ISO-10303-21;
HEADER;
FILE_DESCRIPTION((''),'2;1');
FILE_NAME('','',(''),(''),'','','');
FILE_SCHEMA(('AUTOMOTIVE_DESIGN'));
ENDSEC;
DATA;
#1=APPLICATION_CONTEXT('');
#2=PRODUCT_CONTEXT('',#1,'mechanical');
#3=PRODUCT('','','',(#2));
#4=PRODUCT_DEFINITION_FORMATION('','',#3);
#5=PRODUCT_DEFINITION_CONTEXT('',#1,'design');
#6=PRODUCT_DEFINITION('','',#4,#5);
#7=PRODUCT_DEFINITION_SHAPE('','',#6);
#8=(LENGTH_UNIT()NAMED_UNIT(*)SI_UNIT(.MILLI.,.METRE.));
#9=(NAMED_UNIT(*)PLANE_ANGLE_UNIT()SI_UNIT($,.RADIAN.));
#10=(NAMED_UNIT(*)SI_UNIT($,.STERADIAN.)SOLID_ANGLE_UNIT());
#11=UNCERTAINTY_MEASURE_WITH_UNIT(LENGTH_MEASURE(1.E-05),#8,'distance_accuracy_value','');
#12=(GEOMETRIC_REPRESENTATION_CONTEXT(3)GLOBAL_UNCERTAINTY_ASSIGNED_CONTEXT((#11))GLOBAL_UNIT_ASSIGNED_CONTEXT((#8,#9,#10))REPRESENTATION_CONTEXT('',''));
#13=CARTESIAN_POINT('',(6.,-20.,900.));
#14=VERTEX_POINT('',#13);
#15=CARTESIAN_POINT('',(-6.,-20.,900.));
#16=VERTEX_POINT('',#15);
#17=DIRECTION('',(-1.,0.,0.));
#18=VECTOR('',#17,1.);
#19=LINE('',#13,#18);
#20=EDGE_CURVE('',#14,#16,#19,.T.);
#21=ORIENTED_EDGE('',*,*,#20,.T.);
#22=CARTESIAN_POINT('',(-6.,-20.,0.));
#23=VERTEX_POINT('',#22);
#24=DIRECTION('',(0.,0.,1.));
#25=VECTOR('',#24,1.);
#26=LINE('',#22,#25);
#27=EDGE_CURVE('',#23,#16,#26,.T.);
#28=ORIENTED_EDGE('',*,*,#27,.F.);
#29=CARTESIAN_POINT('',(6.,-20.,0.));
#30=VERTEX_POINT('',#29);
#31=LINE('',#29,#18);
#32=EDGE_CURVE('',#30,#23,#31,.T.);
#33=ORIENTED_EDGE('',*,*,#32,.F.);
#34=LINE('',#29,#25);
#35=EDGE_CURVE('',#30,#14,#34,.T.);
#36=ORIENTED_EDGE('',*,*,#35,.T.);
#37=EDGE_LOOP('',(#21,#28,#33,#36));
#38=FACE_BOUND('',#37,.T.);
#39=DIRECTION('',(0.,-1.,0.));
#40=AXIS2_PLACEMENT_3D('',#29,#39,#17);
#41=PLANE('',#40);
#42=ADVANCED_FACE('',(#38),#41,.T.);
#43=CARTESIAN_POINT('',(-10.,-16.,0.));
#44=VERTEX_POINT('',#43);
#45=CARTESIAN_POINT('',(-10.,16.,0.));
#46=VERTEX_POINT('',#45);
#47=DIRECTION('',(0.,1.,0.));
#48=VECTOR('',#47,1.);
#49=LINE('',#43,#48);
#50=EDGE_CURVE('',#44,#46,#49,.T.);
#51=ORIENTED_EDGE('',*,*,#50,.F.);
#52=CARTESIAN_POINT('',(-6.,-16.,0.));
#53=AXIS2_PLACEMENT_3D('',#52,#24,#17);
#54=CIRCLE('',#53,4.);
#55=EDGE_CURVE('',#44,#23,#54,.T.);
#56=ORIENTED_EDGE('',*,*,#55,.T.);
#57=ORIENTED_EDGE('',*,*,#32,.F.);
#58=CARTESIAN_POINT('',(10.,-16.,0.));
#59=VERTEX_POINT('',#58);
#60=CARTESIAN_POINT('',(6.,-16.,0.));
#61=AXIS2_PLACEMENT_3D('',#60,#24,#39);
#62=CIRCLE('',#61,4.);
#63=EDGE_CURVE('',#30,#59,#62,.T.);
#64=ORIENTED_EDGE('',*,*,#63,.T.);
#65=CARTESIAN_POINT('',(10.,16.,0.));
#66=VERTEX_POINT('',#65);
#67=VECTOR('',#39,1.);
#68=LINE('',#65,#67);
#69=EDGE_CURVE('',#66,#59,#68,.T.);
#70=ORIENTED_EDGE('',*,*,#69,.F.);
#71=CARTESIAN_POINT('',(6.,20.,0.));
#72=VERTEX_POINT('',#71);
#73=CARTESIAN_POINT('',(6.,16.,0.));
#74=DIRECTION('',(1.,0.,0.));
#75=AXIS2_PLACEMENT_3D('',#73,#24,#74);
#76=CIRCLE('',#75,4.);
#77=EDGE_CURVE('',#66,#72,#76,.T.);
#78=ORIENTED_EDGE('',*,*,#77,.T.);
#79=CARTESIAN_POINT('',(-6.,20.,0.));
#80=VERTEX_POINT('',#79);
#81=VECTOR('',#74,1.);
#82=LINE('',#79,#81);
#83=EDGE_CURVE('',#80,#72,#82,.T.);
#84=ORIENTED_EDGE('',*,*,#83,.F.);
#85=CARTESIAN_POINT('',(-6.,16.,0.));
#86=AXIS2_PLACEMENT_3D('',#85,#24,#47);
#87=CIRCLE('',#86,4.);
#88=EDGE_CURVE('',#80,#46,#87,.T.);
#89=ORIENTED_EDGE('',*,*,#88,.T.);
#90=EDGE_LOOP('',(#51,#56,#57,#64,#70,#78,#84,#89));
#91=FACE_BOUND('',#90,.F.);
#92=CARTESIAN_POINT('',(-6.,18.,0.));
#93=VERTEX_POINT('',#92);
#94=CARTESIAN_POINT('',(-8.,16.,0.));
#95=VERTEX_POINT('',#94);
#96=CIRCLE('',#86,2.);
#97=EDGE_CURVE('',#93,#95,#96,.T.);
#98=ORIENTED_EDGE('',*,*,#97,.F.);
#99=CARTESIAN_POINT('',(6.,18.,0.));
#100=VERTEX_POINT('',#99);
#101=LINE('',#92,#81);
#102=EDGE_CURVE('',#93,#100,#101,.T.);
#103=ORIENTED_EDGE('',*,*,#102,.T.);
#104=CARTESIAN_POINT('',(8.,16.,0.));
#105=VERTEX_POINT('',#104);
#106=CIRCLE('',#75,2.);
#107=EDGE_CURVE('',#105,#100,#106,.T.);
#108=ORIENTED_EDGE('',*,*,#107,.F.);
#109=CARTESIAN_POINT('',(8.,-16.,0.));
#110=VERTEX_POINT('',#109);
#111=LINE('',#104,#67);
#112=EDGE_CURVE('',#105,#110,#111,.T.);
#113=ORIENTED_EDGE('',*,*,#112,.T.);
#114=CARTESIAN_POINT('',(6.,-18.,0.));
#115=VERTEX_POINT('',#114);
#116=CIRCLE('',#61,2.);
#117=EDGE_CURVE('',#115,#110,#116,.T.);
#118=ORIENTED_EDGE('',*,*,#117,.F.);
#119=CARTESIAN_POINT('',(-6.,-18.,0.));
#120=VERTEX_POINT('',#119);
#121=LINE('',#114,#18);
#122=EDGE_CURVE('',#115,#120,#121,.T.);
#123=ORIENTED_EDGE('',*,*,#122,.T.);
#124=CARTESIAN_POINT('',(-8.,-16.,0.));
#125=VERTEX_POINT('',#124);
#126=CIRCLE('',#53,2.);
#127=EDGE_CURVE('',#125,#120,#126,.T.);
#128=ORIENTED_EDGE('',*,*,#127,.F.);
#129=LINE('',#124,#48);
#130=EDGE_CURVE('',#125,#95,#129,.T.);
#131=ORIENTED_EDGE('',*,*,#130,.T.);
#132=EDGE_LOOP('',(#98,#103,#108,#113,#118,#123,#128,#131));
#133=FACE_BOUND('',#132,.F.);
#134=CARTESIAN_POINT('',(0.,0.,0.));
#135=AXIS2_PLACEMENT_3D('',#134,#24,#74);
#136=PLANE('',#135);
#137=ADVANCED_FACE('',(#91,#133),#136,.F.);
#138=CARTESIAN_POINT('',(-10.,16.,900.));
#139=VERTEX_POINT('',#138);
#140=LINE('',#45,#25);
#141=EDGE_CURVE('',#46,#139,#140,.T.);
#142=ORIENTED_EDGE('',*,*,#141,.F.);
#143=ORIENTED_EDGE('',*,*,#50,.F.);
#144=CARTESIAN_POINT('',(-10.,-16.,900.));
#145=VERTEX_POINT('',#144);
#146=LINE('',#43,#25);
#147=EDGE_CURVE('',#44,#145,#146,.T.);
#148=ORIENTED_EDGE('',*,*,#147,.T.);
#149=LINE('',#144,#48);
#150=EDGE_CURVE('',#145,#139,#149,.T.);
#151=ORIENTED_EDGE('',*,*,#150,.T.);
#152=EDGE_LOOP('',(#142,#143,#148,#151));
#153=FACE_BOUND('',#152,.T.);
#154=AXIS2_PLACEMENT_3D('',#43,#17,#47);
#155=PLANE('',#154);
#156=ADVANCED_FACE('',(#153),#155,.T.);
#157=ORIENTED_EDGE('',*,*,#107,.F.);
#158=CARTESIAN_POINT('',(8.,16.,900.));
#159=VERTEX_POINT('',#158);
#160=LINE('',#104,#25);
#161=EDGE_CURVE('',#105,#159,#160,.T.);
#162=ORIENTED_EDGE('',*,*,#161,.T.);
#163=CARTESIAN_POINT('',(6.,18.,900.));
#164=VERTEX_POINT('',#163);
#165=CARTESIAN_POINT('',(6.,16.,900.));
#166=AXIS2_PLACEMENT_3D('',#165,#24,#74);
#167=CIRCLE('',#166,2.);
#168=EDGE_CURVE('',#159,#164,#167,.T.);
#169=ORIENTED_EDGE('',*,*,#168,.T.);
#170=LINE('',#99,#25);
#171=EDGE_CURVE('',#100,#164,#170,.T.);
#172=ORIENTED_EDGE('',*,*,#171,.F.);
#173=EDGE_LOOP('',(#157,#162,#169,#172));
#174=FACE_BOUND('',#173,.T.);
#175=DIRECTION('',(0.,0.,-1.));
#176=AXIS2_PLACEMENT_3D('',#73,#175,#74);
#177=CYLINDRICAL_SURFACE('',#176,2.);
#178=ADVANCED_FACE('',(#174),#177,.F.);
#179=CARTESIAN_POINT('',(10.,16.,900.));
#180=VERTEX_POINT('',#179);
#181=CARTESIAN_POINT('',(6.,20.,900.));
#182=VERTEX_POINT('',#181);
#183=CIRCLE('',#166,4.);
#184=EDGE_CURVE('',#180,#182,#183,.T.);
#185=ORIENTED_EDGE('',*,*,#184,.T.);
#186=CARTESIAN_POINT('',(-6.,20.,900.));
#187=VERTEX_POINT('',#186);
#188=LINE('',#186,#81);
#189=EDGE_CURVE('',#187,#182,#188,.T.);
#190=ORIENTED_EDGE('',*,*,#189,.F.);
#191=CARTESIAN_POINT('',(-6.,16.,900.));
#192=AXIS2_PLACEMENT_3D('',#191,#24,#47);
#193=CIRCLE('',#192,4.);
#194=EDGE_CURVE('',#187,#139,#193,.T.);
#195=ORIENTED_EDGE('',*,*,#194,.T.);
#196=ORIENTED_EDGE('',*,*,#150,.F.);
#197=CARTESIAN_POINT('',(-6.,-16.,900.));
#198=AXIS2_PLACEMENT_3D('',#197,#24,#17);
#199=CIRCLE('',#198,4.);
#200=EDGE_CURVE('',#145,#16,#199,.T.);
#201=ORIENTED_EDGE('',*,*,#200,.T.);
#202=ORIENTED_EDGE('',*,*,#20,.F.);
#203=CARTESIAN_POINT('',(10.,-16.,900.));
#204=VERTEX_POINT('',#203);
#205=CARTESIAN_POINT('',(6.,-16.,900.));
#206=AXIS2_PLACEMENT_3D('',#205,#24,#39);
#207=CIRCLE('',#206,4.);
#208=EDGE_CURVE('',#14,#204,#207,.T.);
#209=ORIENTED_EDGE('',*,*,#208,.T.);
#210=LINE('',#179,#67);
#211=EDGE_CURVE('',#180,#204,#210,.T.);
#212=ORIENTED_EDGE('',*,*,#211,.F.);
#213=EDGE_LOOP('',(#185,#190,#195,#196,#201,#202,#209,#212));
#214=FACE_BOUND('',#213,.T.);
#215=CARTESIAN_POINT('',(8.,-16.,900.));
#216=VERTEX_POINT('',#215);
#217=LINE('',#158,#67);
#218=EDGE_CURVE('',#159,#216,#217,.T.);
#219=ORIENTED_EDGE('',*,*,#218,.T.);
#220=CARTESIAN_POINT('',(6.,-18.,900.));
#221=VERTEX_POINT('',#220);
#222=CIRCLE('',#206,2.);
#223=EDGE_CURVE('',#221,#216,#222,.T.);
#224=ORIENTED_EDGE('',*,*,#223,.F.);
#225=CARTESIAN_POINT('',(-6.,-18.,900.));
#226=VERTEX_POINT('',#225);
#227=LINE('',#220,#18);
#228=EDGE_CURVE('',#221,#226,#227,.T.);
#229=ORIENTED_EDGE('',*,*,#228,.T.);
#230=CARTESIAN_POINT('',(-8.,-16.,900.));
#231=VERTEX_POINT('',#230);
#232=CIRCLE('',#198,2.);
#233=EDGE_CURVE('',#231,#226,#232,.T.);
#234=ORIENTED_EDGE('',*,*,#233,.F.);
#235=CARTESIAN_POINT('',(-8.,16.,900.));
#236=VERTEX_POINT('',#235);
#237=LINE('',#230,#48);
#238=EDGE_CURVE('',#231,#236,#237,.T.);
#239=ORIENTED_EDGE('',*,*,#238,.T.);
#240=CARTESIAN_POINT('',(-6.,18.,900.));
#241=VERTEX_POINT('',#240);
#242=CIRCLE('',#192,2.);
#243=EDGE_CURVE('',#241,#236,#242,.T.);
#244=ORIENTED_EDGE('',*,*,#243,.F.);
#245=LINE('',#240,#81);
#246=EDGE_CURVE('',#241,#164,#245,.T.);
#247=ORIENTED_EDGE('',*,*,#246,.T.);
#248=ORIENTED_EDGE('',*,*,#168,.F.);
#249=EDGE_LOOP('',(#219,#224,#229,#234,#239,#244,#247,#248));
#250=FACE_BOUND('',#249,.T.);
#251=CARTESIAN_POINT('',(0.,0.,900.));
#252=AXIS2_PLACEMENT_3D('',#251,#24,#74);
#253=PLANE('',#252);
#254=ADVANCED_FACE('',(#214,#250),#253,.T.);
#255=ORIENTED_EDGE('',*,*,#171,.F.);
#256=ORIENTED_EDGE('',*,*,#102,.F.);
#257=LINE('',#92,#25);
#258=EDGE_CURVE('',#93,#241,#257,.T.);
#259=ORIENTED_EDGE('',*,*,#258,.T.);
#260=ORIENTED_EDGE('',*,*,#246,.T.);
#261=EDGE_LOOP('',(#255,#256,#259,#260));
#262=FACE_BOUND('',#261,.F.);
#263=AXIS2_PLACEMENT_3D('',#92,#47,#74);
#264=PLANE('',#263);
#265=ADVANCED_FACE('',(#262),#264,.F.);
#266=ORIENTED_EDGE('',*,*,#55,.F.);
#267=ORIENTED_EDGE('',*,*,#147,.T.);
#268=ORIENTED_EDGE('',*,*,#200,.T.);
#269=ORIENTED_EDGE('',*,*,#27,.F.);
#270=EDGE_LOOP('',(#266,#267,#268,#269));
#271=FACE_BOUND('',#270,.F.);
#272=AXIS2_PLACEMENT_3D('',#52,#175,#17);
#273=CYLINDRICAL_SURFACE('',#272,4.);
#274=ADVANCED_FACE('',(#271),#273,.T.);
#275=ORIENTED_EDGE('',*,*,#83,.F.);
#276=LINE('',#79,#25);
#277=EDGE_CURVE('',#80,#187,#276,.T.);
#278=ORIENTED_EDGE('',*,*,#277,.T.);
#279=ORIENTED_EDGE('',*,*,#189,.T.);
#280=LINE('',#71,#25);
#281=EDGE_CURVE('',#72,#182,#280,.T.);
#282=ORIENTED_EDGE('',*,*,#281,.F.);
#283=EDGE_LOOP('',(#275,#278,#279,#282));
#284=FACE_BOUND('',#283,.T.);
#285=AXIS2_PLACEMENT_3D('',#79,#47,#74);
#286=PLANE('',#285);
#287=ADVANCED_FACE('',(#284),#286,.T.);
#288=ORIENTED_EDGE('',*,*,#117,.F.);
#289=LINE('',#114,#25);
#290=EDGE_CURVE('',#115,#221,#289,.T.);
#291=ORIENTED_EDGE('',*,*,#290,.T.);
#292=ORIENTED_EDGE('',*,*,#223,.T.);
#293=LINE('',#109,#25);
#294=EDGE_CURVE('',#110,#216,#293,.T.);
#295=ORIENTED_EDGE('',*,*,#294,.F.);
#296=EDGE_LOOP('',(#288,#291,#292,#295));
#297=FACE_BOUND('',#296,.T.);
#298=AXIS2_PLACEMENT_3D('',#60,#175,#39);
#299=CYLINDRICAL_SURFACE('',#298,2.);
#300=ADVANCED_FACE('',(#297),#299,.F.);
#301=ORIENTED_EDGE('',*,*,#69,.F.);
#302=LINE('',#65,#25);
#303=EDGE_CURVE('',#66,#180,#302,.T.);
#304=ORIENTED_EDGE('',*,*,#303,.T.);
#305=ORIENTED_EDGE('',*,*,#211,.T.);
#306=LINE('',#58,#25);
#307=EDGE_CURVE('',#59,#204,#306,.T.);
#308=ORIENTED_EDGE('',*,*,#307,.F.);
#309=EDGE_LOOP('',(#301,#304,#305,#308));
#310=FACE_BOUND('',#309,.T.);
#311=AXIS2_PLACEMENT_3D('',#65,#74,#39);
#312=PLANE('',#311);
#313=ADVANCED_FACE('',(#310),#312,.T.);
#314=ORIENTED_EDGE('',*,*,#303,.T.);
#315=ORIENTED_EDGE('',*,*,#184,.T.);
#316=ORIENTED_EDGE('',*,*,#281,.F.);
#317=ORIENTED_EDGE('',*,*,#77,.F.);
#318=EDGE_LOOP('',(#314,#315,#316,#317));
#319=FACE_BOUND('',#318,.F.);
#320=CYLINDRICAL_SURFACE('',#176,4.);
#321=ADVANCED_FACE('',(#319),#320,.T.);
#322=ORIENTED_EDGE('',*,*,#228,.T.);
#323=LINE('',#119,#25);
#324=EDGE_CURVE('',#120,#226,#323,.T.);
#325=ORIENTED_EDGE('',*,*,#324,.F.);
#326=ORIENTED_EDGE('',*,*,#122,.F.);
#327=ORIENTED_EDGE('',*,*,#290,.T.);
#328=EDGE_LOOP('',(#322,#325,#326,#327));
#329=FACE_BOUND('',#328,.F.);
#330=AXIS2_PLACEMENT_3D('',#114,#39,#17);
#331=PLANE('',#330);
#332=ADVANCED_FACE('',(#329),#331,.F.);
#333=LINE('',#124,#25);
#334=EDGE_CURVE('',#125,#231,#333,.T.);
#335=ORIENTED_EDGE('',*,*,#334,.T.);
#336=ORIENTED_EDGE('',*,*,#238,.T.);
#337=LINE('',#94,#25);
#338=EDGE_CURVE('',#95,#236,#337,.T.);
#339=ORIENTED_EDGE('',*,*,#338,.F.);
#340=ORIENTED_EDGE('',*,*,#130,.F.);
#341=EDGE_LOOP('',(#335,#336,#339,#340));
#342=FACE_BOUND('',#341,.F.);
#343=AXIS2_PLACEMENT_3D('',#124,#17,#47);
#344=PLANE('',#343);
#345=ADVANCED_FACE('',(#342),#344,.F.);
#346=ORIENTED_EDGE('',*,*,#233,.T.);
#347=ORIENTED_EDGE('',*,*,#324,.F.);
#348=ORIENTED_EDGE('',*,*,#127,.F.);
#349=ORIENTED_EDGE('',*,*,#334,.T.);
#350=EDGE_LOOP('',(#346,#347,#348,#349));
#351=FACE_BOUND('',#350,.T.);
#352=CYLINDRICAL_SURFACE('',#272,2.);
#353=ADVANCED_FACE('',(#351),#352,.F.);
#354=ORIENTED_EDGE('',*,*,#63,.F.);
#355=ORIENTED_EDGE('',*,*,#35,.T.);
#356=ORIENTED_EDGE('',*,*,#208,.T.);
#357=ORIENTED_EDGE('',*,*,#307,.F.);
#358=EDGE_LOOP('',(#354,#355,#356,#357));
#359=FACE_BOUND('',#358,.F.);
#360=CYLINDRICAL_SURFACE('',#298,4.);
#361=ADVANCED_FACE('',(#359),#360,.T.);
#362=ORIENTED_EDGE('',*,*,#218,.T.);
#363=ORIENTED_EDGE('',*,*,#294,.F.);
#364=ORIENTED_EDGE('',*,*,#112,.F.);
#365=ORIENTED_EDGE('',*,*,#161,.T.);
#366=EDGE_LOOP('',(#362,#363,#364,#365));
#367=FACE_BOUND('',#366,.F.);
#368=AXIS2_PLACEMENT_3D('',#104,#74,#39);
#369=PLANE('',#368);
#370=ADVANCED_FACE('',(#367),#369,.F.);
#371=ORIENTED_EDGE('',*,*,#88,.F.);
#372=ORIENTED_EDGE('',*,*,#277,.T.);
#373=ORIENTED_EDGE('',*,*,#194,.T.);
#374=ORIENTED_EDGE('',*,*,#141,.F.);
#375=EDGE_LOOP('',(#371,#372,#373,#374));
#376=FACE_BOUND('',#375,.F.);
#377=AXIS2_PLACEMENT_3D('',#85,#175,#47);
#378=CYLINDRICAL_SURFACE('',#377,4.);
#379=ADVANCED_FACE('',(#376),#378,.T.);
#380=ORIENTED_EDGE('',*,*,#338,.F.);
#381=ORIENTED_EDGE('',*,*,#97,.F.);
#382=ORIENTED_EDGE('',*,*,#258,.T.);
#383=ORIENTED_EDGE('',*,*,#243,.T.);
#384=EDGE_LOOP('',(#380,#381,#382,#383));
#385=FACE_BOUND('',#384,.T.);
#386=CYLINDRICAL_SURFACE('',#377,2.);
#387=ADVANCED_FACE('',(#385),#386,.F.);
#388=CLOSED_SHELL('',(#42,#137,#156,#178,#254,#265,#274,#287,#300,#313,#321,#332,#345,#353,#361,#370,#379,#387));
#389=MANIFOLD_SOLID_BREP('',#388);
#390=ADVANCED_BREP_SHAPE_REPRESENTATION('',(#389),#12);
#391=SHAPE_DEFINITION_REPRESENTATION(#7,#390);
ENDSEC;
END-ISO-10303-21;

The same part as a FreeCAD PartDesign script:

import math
import FreeCAD as App
import Part
import Sketcher

doc = App.newDocument("Part")
params = doc.addObject("Spreadsheet::Sheet", "Params")
for row, (alias, value) in enumerate([
    ("sketch1_radius", "4 mm"),
    ("sketch1_radius2", "2 mm"),
    ("pad1_length", "900 mm"),
], start=1):
    params.set(f"A{row}", alias)
    params.set(f"B{row}", "=" + value)
    params.setAlias(f"B{row}", alias)

body = doc.addObject("PartDesign::Body", "Body")

# Sketch on XY plane
sketch1 = body.newObject("Sketcher::SketchObject", "Sketch")
sketch1.AttachmentSupport = (doc.getObject("XY_Plane"), [""])
sketch1.MapMode = "FlatFace"
sketch1.addGeometry([
    Part.LineSegment(App.Vector(-10, 16, 0), App.Vector(-10, -16, 0)),  # 0
    Part.ArcOfCircle(Part.Circle(App.Vector(-6, -16, 0), App.Vector(0, 0, 1), 4), math.radians(180), math.radians(270)),  # 1
    Part.LineSegment(App.Vector(-6, -20, 0), App.Vector(6, -20, 0)),  # 2
    Part.ArcOfCircle(Part.Circle(App.Vector(6, -16, 0), App.Vector(0, 0, 1), 4), math.radians(-90), math.radians(0)),  # 3
    Part.LineSegment(App.Vector(10, -16, 0), App.Vector(10, 16, 0)),  # 4
    Part.ArcOfCircle(Part.Circle(App.Vector(6, 16, 0), App.Vector(0, 0, 1), 4), math.radians(0), math.radians(90)),  # 5
    Part.LineSegment(App.Vector(6, 20, 0), App.Vector(-6, 20, 0)),  # 6
    Part.ArcOfCircle(Part.Circle(App.Vector(-6, 16, 0), App.Vector(0, 0, 1), 4), math.radians(90), math.radians(180)),  # 7
    Part.ArcOfCircle(Part.Circle(App.Vector(-6, 16, 0), App.Vector(0, 0, 1), 2), math.radians(90), math.radians(180)),  # 8
    Part.LineSegment(App.Vector(-6, 18, 0), App.Vector(6, 18, 0)),  # 9
    Part.ArcOfCircle(Part.Circle(App.Vector(6, 16, 0), App.Vector(0, 0, 1), 2), math.radians(0), math.radians(90)),  # 10
    Part.LineSegment(App.Vector(8, 16, 0), App.Vector(8, -16, 0)),  # 11
    Part.ArcOfCircle(Part.Circle(App.Vector(6, -16, 0), App.Vector(0, 0, 1), 2), math.radians(-90), math.radians(0)),  # 12
    Part.LineSegment(App.Vector(6, -18, 0), App.Vector(-6, -18, 0)),  # 13
    Part.ArcOfCircle(Part.Circle(App.Vector(-6, -16, 0), App.Vector(0, 0, 1), 2), math.radians(180), math.radians(270)),  # 14
    Part.LineSegment(App.Vector(-8, -16, 0), App.Vector(-8, 16, 0)),  # 15
], False)
sketch1.addConstraint([
    Sketcher.Constraint("Tangent", 0, 2, 1, 1),
    Sketcher.Constraint("Tangent", 1, 2, 2, 1),
    Sketcher.Constraint("Tangent", 2, 2, 3, 1),
    Sketcher.Constraint("Tangent", 3, 2, 4, 1),
    Sketcher.Constraint("Tangent", 4, 2, 5, 1),
    Sketcher.Constraint("Tangent", 5, 2, 6, 1),
    Sketcher.Constraint("Tangent", 6, 2, 7, 1),
    Sketcher.Constraint("Tangent", 7, 2, 0, 1),
    Sketcher.Constraint("Tangent", 8, 1, 9, 1),
    Sketcher.Constraint("Tangent", 9, 2, 10, 2),
    Sketcher.Constraint("Tangent", 10, 1, 11, 1),
    Sketcher.Constraint("Tangent", 11, 2, 12, 2),
    Sketcher.Constraint("Tangent", 12, 1, 13, 1),
    Sketcher.Constraint("Tangent", 13, 2, 14, 2),
    Sketcher.Constraint("Tangent", 14, 1, 15, 1),
    Sketcher.Constraint("Tangent", 15, 2, 8, 2),
    Sketcher.Constraint("Vertical", 0),
    Sketcher.Constraint("Horizontal", 2),
    Sketcher.Constraint("Vertical", 4),
    Sketcher.Constraint("Horizontal", 6),
    Sketcher.Constraint("Horizontal", 9),
    Sketcher.Constraint("Vertical", 11),
    Sketcher.Constraint("Horizontal", 13),
    Sketcher.Constraint("Vertical", 15),
    Sketcher.Constraint("Coincident", 8, 3, 7, 3),
    Sketcher.Constraint("Coincident", 10, 3, 5, 3),
    Sketcher.Constraint("Coincident", 12, 3, 3, 3),
    Sketcher.Constraint("Equal", 1, 3),
    Sketcher.Constraint("Equal", 3, 5),
    Sketcher.Constraint("Equal", 5, 7),
    Sketcher.Constraint("Equal", 12, 14),
    Sketcher.Constraint("Symmetric", 1, 3, 5, 3, -1, 1),
    Sketcher.Constraint("Radius", 1, 4.0),
    Sketcher.Constraint("Radius", 8, 2.0),
    Sketcher.Constraint("DistanceX", 0, 2, -1, 1, 10.0),
    Sketcher.Constraint("DistanceY", 1, 2, -1, 1, 20.0),
])
sketch1.setExpression("Constraints[32]", "Params.sketch1_radius")
sketch1.setExpression("Constraints[33]", "Params.sketch1_radius2")
pad1 = body.newObject("PartDesign::Pad", "Pad")
pad1.Profile = sketch1
pad1.setExpression("Length", "Params.pad1_length")

doc.recompute()
